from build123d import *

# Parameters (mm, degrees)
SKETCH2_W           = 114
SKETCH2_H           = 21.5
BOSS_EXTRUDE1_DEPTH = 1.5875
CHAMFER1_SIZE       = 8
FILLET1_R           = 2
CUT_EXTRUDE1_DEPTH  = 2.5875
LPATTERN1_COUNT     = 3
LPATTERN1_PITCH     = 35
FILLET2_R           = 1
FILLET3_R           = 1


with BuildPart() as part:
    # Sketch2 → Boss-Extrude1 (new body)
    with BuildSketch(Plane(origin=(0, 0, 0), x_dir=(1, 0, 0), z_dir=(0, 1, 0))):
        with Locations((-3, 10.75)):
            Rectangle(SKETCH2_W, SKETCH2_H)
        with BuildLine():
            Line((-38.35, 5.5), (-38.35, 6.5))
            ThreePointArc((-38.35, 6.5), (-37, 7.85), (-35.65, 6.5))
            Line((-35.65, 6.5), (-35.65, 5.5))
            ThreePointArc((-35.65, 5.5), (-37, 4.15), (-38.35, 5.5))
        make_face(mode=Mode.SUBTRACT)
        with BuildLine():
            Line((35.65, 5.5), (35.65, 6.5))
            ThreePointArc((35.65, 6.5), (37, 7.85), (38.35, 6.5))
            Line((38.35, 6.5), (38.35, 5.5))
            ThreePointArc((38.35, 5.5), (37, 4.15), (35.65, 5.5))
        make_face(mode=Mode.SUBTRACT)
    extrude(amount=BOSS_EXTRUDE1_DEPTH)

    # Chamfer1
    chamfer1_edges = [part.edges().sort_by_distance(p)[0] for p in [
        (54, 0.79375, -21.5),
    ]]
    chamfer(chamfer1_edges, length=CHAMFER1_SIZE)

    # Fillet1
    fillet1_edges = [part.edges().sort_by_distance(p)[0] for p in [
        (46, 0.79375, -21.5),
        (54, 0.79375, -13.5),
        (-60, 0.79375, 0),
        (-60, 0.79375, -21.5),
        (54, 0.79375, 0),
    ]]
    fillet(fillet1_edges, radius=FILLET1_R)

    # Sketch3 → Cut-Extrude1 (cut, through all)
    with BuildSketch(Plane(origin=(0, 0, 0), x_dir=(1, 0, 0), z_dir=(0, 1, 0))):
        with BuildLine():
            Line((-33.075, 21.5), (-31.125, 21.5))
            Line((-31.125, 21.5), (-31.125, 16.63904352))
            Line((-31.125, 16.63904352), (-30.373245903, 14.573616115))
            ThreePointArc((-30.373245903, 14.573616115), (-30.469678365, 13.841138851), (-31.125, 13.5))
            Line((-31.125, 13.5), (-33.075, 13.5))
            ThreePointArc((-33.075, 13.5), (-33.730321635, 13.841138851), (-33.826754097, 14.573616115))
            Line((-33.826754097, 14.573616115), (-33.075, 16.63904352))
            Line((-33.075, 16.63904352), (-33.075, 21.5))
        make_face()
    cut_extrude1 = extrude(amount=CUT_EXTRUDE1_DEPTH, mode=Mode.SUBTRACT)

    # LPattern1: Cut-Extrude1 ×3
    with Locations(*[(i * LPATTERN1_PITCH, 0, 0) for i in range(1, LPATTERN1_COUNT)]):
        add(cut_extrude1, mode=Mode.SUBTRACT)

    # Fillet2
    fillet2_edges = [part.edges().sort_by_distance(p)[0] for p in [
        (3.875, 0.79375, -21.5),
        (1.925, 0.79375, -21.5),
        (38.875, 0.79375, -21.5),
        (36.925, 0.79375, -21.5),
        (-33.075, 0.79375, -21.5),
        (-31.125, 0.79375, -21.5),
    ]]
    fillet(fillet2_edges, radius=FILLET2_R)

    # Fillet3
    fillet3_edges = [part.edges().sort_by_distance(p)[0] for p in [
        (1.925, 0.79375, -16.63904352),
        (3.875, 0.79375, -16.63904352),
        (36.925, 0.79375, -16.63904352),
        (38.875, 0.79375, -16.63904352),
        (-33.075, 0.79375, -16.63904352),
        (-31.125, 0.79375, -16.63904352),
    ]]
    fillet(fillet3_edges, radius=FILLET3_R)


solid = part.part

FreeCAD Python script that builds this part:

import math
import FreeCAD as App
import Part
import Sketcher
Q = App.Units.Quantity


def edges_at(feature, points):
    """Names of the edges that pass closest to the given points."""
    edges = feature.Shape.Edges
    near = lambda p: min(range(len(edges)), key=lambda i: edges[i].distToShape(Part.Vertex(*p))[0])
    return sorted({f"Edge{near(p) + 1}" for p in points})

doc = App.newDocument("Part")
body = doc.addObject("PartDesign::Body", "Body")

sketch1 = body.newObject("Sketcher::SketchObject", "Sketch")
sketch1.AttachmentSupport = (doc.getObject("XZ_Plane"), [""])
sketch1.MapMode = "FlatFace"
sketch1.addGeometry([
    Part.LineSegment(App.Vector(-60, -21.5, 0), App.Vector(-60, 0, 0)),
    Part.LineSegment(App.Vector(-60, 0, 0), App.Vector(54, 0, 0)),
    Part.LineSegment(App.Vector(54, 0, 0), App.Vector(54, -21.5, 0)),
    Part.LineSegment(App.Vector(54, -21.5, 0), App.Vector(-60, -21.5, 0)),
    Part.ArcOfCircle(Part.Circle(App.Vector(-37, -5.5, 0), App.Vector(0, 0, 1), 1.4), math.radians(0), math.radians(180)),
    Part.LineSegment(App.Vector(-38.4, -5.5, 0), App.Vector(-38.4, -6.5, 0)),
    Part.ArcOfCircle(Part.Circle(App.Vector(-37, -6.5, 0), App.Vector(0, 0, 1), 1.4), math.radians(180), math.radians(360)),
    Part.LineSegment(App.Vector(-35.6, -6.5, 0), App.Vector(-35.6, -5.5, 0)),
    Part.ArcOfCircle(Part.Circle(App.Vector(37, -5.5, 0), App.Vector(0, 0, 1), 1.4), math.radians(0), math.radians(180)),
    Part.LineSegment(App.Vector(35.6, -5.5, 0), App.Vector(35.6, -6.5, 0)),
    Part.ArcOfCircle(Part.Circle(App.Vector(37, -6.5, 0), App.Vector(0, 0, 1), 1.4), math.radians(180), math.radians(360)),
    Part.LineSegment(App.Vector(38.4, -6.5, 0), App.Vector(38.4, -5.5, 0)),
], False)
sketch1.addConstraint([
    Sketcher.Constraint("Coincident", 0, 2, 1, 1),
    Sketcher.Constraint("Coincident", 1, 2, 2, 1),
    Sketcher.Constraint("Coincident", 2, 2, 3, 1),
    Sketcher.Constraint("Coincident", 3, 2, 0, 1),
    Sketcher.Constraint("Tangent", 4, 2, 5, 1),
    Sketcher.Constraint("Tangent", 5, 2, 6, 1),
    Sketcher.Constraint("Tangent", 6, 2, 7, 1),
    Sketcher.Constraint("Tangent", 7, 2, 4, 1),
    Sketcher.Constraint("Tangent", 8, 2, 9, 1),
    Sketcher.Constraint("Tangent", 9, 2, 10, 1),
    Sketcher.Constraint("Tangent", 10, 2, 11, 1),
    Sketcher.Constraint("Tangent", 11, 2, 8, 1),
    Sketcher.Constraint("Vertical", 0),
    Sketcher.Constraint("Horizontal", 1),
    Sketcher.Constraint("Vertical", 2),
    Sketcher.Constraint("Horizontal", 3),
    Sketcher.Constraint("Vertical", 5),
    Sketcher.Constraint("Vertical", 7),
    Sketcher.Constraint("Vertical", 9),
    Sketcher.Constraint("Vertical", 11),
    Sketcher.Constraint("Equal", 6, 8),
    Sketcher.Constraint("Symmetric", 4, 3, 8, 3, -2),
    Sketcher.Constraint("PointOnObject", 0, 2, -1),
    Sketcher.Constraint("Horizontal", 6, 3, 10, 3),
    Sketcher.Constraint("DistanceX", 1, 1, 1, 2, 114.0),
    Sketcher.Constraint("DistanceY", 5, 2, 5, 1, 1.0),
    Sketcher.Constraint("Radius", 4, 1.35),
    Sketcher.Constraint("DistanceY", 0, 1, 0, 2, 21.5),
    Sketcher.Constraint("DistanceX", 4, 3, -1, 1, 37.0),
    Sketcher.Constraint("DistanceX", 0, 2, -1, 1, 60.0),
    Sketcher.Constraint("DistanceY", 2, 2, 10, 3, 15.0),
])
pad1 = body.newObject("PartDesign::Pad", "Pad")
pad1.Profile = sketch1
pad1.Length = 1.5875
pad1.Reversed = True
doc.recompute()

chamfer = body.newObject("PartDesign::Chamfer", "Chamfer")
chamfer.Base = (pad1, edges_at(pad1, [(54, 0.794, -21.5)]))
chamfer.Size = 8
doc.recompute()

fillet = body.newObject("PartDesign::Fillet", "Fillet")
fillet.Base = (chamfer, edges_at(chamfer, [
    (46, 0.794, -21.5),
    (54, 0.794, -13.5),
    (-60, 0.794, 0),
    (-60, 0.794, -21.5),
    (54, 0.794, 0),
]))
fillet.Radius = 2

sketch2 = body.newObject("Sketcher::SketchObject", "Sketch001")
sketch2.AttachmentSupport = (doc.getObject("XZ_Plane"), [""])
sketch2.MapMode = "FlatFace"
sketch2.addGeometry([
    Part.LineSegment(App.Vector(-31.1, -21.5, 0), App.Vector(-33.1, -21.5, 0)),
    Part.LineSegment(App.Vector(-33.1, -21.5, 0), App.Vector(-33.1, -16.6, 0)),
    Part.LineSegment(App.Vector(-33.1, -16.6, 0), App.Vector(-33.8, -14.6, 0)),
    Part.ArcOfCircle(Part.Circle(App.Vector(-33.1, -14.3, 0), App.Vector(0, 0, 1), 0.8), math.radians(90), math.radians(200)),
    Part.LineSegment(App.Vector(-33.1, -13.5, 0), App.Vector(-31.1, -13.5, 0)),
    Part.ArcOfCircle(Part.Circle(App.Vector(-31.1, -14.3, 0), App.Vector(0, 0, 1), 0.8), math.radians(-20), math.radians(90)),
    Part.LineSegment(App.Vector(-30.4, -14.6, 0), App.Vector(-31.1, -16.6, 0)),
    Part.LineSegment(App.Vector(-31.1, -16.6, 0), App.Vector(-31.1, -21.5, 0)),
], False)
sketch2.addConstraint([
    Sketcher.Constraint("Coincident", 0, 2, 1, 1),
    Sketcher.Constraint("Coincident", 1, 2, 2, 1),
    Sketcher.Constraint("Tangent", 2, 2, 3, 2),
    Sketcher.Constraint("Tangent", 3, 1, 4, 1),
    Sketcher.Constraint("Tangent", 4, 2, 5, 2),
    Sketcher.Constraint("Tangent", 5, 1, 6, 1),
    Sketcher.Constraint("Coincident", 6, 2, 7, 1),
    Sketcher.Constraint("Coincident", 7, 2, 0, 1),
    Sketcher.Constraint("Horizontal", 0),
    Sketcher.Constraint("Vertical", 1),
    Sketcher.Constraint("Horizontal", 4),
    Sketcher.Constraint("Vertical", 7),
    Sketcher.Constraint("Equal", 3, 5),
    Sketcher.Constraint("Horizontal", 2, 2, 5, 1),
    Sketcher.Constraint("Horizontal", 1, 2, 6, 2),
    Sketcher.Constraint("Vertical", 3, 3, 0, 2),
    Sketcher.Constraint("Radius", 3, 0.8),
    Sketcher.Constraint("Angle", 2, Q("110 deg")),
    Sketcher.Constraint("DistanceY", 0, 2, 3, 1, 8.0),
    Sketcher.Constraint("DistanceX", 0, 2, 0, 1, 1.95),
    Sketcher.Constraint("DistanceY", 3, 3, -1, 1, 14.3),
    Sketcher.Constraint("DistanceX", 3, 3, -1, 1, 33.075),
])
pocket1 = body.newObject("PartDesign::Pocket", "Pocket")
pocket1.Profile = sketch2
pocket1.Type = "ThroughAll"
doc.recompute()

linearpattern = body.newObject("PartDesign::LinearPattern", "LinearPattern")
linearpattern.Originals = [pocket1]
linearpattern.Direction = (doc.getObject("X_Axis"), [""])
linearpattern.Mode = "offset"
linearpattern.Offset = 35
linearpattern.Occurrences = 3
body.Tip = linearpattern
doc.recompute()

fillet2 = body.newObject("PartDesign::Fillet", "Fillet001")
fillet2.Base = (linearpattern, edges_at(linearpattern, [
    (3.875, 0.794, -21.5),
    (1.925, 0.794, -21.5),
    (38.875, 0.794, -21.5),
    (36.925, 0.794, -21.5),
    (-33.075, 0.794, -21.5),
    (-31.125, 0.794, -21.5),
]))
fillet2.Radius = 1
doc.recompute()

fillet3 = body.newObject("PartDesign::Fillet", "Fillet002")
fillet3.Base = (fillet2, edges_at(fillet2, [
    (1.925, 0.794, -16.639),
    (3.875, 0.794, -16.639),
    (36.925, 0.794, -16.639),
    (38.875, 0.794, -16.639),
    (-33.075, 0.794, -16.639),
    (-31.125, 0.794, -16.639),
]))
fillet3.Radius = 1

doc.recompute()
